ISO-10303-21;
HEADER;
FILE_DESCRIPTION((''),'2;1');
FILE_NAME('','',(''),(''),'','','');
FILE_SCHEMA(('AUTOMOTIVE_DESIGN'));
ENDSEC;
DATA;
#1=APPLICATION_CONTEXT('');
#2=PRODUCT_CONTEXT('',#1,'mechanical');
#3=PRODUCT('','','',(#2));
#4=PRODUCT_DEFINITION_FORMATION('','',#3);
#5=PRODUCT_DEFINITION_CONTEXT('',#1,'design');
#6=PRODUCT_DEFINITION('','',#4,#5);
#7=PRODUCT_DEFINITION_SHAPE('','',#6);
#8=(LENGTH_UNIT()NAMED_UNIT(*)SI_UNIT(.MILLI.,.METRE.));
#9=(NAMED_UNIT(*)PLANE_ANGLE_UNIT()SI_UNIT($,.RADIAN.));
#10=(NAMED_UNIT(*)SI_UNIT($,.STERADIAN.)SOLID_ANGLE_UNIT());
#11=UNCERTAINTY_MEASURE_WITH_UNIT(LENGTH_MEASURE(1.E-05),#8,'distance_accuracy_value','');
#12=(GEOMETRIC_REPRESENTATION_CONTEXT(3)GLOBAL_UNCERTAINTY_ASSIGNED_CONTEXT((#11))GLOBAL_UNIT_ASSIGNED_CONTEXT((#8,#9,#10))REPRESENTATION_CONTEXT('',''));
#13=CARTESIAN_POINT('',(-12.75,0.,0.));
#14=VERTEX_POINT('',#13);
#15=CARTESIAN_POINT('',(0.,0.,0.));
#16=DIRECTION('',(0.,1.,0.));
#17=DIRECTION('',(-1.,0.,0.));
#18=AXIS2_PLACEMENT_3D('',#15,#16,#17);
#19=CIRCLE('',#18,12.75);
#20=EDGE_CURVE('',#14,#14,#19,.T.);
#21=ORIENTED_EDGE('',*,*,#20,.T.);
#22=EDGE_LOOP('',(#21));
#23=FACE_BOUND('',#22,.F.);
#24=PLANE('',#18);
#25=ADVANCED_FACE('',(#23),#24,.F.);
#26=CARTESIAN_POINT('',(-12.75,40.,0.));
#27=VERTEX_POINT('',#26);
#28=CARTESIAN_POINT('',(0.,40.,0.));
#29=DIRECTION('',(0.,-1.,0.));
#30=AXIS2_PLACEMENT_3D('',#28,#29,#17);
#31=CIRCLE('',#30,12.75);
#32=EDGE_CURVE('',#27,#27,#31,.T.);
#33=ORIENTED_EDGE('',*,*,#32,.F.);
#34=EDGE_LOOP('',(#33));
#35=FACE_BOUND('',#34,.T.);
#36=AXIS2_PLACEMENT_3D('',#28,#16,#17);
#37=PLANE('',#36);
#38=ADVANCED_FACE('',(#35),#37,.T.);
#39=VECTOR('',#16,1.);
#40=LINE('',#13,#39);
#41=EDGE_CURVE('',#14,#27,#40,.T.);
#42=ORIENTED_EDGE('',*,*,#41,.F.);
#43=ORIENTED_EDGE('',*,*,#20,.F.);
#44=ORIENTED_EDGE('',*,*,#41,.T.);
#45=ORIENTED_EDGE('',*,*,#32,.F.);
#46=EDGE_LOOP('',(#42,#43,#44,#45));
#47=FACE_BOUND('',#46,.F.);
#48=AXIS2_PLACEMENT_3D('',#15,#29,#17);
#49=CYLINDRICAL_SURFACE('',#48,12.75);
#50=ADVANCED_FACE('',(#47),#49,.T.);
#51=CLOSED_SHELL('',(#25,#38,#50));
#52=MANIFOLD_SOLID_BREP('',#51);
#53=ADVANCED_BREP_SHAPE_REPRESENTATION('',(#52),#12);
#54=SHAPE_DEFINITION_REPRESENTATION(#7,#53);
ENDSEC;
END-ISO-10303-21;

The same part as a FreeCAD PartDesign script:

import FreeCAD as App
import Part
import Sketcher
from FreeCAD import Vector

doc = App.newDocument("Part")
body = doc.addObject("PartDesign::Body", "Body")

sketch1 = body.newObject("Sketcher::SketchObject", "Sketch")
sketch1.AttachmentSupport = (doc.getObject("XZ_Plane"), [""])
sketch1.MapMode = "FlatFace"
sketch1.addGeometry(Part.Circle(Vector(0, 0, 0), Vector(0, 0, 1), 12.75), False)
sketch1.addConstraint(Sketcher.Constraint("Coincident", 0, 3, -1, 1))
sketch1.addConstraint(Sketcher.Constraint("Diameter", 0, 25.5))
pad1 = body.newObject("PartDesign::Pad", "Pad")
pad1.Profile = sketch1
pad1.Length = 40
pad1.Reversed = True

doc.recompute()
